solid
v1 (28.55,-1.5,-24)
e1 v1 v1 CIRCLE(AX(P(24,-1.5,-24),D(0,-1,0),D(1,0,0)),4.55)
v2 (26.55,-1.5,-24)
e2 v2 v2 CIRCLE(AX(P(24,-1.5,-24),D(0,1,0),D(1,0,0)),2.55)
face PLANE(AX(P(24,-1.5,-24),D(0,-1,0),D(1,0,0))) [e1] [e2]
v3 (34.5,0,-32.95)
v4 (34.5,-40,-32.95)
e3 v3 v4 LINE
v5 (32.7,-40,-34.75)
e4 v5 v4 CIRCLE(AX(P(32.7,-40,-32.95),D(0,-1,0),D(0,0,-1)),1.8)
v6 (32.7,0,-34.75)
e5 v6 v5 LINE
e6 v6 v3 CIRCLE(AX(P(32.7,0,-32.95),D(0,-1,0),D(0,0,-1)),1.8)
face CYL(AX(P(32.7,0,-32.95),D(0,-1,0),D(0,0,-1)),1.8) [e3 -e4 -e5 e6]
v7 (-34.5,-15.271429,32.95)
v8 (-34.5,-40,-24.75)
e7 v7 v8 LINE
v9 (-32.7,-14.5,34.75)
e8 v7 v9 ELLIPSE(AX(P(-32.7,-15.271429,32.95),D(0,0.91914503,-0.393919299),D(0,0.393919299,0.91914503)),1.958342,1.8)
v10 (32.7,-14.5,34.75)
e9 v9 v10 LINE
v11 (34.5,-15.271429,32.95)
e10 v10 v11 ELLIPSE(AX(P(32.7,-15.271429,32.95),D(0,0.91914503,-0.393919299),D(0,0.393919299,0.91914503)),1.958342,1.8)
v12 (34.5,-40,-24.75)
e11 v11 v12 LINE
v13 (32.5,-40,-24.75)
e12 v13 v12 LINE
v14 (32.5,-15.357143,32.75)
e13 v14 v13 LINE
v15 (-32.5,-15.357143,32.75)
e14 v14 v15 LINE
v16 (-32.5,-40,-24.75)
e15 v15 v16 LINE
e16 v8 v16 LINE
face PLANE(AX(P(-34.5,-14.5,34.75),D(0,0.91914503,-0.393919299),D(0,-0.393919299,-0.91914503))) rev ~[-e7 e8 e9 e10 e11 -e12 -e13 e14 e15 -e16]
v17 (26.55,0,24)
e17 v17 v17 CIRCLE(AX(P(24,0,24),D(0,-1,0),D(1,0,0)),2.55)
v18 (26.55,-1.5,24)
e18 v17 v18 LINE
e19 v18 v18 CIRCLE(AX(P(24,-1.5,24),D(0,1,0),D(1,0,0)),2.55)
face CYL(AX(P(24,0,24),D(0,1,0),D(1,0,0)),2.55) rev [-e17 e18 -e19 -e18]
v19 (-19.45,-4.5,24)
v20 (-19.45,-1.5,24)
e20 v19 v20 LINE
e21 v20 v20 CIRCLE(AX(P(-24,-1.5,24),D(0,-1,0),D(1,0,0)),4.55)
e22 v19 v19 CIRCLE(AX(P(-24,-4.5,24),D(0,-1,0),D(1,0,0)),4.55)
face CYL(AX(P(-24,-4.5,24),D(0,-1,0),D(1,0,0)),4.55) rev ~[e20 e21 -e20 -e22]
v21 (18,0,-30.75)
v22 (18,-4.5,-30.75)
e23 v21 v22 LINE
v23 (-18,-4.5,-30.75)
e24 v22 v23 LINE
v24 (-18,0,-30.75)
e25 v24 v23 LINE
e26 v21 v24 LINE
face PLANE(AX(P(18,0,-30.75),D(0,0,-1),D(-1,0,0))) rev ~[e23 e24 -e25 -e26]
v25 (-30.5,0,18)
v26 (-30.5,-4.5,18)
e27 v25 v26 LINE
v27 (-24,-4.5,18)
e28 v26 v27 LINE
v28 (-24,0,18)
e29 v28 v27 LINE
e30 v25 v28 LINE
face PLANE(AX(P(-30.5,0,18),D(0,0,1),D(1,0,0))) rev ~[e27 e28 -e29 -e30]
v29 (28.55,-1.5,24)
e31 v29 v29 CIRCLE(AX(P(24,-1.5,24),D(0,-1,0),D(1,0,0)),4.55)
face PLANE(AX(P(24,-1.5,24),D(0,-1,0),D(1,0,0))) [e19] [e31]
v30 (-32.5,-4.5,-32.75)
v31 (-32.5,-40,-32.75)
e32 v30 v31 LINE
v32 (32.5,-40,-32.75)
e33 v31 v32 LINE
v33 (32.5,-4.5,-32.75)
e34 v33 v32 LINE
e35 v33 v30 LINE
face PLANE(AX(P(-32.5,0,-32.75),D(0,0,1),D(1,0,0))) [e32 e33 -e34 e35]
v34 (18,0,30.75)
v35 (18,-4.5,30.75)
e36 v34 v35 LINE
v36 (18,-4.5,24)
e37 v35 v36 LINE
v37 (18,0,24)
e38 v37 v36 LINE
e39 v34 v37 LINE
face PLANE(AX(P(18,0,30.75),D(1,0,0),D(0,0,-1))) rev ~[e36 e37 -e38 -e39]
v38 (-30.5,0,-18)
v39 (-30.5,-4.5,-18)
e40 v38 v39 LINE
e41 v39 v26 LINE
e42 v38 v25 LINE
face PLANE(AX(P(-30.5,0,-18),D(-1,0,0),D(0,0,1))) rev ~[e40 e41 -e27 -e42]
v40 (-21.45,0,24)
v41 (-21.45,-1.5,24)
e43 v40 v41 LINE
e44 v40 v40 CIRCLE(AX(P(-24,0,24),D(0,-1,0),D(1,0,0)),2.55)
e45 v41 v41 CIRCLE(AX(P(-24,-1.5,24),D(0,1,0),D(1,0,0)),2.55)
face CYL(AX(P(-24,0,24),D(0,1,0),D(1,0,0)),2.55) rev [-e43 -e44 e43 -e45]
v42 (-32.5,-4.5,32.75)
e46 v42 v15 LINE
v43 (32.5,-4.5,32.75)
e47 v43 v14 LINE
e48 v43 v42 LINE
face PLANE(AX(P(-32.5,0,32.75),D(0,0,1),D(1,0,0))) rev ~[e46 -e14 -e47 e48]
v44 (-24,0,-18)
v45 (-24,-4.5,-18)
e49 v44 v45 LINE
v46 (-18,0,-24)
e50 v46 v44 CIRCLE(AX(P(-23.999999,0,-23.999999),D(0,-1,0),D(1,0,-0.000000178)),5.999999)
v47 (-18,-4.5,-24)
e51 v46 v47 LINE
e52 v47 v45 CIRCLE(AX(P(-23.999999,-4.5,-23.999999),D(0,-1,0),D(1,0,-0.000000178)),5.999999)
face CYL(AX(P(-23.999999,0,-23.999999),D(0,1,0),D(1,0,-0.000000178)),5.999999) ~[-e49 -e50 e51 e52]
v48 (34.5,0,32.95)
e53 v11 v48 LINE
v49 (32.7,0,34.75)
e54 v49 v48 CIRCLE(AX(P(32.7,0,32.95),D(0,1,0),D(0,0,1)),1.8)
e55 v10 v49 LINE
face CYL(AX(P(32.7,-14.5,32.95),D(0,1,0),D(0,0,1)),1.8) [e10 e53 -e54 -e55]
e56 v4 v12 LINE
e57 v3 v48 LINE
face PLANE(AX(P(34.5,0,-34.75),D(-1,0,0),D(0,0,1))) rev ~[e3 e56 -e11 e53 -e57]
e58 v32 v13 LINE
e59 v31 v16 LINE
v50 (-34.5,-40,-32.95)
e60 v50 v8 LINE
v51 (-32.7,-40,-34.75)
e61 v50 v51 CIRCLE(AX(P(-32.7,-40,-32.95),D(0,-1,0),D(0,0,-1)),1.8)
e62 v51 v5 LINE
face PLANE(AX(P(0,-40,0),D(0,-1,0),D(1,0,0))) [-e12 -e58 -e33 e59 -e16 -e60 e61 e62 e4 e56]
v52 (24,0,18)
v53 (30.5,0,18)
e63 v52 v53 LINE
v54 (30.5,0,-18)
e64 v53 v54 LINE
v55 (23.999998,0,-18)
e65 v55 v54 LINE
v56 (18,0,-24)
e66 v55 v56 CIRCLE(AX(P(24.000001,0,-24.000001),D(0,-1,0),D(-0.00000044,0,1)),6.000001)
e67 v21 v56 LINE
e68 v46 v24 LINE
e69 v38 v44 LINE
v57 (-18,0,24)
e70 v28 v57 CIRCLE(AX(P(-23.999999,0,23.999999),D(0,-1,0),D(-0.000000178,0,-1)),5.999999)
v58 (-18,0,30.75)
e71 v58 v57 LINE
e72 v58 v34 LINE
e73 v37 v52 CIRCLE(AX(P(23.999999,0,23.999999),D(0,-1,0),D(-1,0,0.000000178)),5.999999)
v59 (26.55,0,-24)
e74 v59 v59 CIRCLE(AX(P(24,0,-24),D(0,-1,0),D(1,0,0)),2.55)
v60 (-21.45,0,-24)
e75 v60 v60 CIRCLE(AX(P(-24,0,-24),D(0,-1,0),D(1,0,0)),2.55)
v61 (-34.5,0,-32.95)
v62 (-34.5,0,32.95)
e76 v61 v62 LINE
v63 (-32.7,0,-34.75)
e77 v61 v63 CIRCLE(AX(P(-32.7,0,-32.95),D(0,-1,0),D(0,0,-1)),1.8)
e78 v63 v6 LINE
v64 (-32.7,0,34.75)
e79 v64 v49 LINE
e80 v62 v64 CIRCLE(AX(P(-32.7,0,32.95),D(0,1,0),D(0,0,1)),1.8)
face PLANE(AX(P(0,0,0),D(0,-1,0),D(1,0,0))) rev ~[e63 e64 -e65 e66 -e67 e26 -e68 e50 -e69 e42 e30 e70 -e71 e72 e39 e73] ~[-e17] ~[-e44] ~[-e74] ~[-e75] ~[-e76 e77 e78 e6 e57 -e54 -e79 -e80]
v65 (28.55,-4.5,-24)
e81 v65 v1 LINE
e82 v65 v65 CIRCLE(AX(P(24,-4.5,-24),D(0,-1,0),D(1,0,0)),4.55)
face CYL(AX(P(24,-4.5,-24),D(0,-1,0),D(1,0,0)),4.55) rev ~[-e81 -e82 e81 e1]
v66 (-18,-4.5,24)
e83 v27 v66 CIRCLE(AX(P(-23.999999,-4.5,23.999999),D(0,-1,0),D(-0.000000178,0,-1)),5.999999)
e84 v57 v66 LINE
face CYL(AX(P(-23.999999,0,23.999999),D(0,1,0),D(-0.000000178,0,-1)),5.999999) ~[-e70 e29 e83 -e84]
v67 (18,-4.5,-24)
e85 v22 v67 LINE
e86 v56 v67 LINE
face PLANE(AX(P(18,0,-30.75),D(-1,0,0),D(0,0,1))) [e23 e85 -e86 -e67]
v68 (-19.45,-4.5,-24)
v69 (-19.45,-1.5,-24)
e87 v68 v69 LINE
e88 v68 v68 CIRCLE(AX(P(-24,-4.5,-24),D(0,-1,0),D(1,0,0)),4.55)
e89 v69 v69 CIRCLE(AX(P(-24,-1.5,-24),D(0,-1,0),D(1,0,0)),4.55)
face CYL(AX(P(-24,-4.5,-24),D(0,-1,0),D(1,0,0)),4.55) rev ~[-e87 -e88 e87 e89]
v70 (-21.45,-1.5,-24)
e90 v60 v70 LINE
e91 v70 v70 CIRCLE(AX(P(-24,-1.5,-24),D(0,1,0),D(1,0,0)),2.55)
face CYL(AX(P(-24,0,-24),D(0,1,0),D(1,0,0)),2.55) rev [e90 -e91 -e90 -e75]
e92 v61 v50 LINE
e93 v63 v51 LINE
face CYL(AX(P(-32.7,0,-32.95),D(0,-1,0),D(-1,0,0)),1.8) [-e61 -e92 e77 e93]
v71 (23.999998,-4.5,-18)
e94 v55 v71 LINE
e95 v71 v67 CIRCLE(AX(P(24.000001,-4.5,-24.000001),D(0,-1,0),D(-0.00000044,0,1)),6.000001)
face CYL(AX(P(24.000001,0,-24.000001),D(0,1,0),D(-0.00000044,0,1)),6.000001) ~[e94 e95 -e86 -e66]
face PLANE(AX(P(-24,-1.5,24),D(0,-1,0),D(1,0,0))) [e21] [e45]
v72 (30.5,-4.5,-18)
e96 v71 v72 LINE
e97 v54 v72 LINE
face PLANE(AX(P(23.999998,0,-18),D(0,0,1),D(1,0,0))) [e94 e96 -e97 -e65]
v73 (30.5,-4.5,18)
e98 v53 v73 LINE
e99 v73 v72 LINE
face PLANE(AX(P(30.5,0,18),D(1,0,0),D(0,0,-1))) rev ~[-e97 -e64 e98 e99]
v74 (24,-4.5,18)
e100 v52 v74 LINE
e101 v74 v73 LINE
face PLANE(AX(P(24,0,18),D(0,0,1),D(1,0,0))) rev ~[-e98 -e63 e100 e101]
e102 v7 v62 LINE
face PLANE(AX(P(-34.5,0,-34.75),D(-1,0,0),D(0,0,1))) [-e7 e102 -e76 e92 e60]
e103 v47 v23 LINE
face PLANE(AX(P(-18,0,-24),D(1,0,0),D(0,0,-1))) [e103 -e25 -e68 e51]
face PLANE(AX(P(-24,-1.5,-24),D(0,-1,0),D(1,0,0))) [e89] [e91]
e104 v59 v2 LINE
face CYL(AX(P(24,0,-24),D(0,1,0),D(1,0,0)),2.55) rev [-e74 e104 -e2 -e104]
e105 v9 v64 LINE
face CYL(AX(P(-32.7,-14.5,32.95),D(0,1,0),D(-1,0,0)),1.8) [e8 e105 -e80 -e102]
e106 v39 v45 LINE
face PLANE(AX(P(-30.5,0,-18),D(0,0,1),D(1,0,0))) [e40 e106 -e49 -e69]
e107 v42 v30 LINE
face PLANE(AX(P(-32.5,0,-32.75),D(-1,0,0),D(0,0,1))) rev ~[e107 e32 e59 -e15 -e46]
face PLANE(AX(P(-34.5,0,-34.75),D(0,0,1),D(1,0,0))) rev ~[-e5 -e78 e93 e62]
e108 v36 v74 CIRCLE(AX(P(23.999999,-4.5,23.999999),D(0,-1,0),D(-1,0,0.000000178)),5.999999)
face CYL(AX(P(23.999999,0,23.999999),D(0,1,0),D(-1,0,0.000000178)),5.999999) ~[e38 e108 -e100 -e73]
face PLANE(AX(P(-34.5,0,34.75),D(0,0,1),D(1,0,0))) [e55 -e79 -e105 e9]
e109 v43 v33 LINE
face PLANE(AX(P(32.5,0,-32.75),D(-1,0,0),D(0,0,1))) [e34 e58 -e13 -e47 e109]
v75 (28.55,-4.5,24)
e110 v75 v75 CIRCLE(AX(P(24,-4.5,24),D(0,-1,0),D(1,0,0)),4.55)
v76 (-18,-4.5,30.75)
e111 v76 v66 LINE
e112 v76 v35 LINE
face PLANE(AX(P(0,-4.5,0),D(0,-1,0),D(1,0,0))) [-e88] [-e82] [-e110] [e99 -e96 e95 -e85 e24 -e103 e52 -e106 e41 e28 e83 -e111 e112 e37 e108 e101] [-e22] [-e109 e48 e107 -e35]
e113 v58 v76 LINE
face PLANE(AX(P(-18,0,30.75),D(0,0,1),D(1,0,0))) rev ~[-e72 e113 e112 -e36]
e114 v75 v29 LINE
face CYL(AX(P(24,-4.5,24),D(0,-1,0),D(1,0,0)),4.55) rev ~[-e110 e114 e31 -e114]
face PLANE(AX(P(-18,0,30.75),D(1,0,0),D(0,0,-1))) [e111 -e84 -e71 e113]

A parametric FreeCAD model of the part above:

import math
import FreeCAD as App
import Part
import Sketcher

V = App.Vector
Q = App.Units.Quantity


def edges_at(feature, points):
    """Names of the edges that pass closest to the given points."""
    edges = feature.Shape.Edges
    near = lambda p: min(range(len(edges)), key=lambda i: edges[i].distToShape(Part.Vertex(*p))[0])
    return sorted({f"Edge{near(p) + 1}" for p in points})

doc = App.newDocument("Part")
body = doc.addObject("PartDesign::Body", "Body")

sketch1 = body.newObject("Sketcher::SketchObject", "Sketch")
sketch1.AttachmentSupport = (doc.getObject("XZ_Plane"), [""])
sketch1.MapMode = "FlatFace"
sketch1.addGeometry([
    Part.LineSegment(V(-34.5, 34.8, 0), V(-34.5, -34.8, 0)),
    Part.LineSegment(V(-34.5, -34.8, 0), V(34.5, -34.8, 0)),
    Part.LineSegment(V(34.5, -34.8, 0), V(34.5, 34.8, 0)),
    Part.LineSegment(V(34.5, 34.8, 0), V(-34.5, 34.8, 0)),
    Part.Circle(V(-24, -24, 0), V(0, 0, 1), 2.5),
    Part.Circle(V(24, -24, 0), V(0, 0, 1), 2.5),
    Part.Circle(V(-24, 24, 0), V(0, 0, 1), 2.5),
    Part.LineSegment(V(-18, 24, 0), V(-18, 30.8, 0)),
    Part.LineSegment(V(-18, 30.8, 0), V(18, 30.8, 0)),
    Part.LineSegment(V(18, 30.8, 0), V(18, 24, 0)),
    Part.ArcOfCircle(Part.Circle(V(24, 24, 0), V(0, 0, 1), 6), math.radians(180), math.radians(270)),
    Part.LineSegment(V(24, 18, 0), V(30.5, 18, 0)),
    Part.LineSegment(V(30.5, 18, 0), V(30.5, -18, 0)),
    Part.LineSegment(V(30.5, -18, 0), V(24, -18, 0)),
    Part.ArcOfCircle(Part.Circle(V(24, -24, 0), V(0, 0, 1), 6), math.radians(90), math.radians(180)),
    Part.LineSegment(V(18, -24, 0), V(18, -30.8, 0)),
    Part.LineSegment(V(18, -30.8, 0), V(-18, -30.8, 0)),
    Part.LineSegment(V(-18, -30.8, 0), V(-18, -24, 0)),
    Part.ArcOfCircle(Part.Circle(V(-24, -24, 0), V(0, 0, 1), 6), math.radians(0), math.radians(90)),
    Part.LineSegment(V(-24, -18, 0), V(-30.5, -18, 0)),
    Part.LineSegment(V(-30.5, -18, 0), V(-30.5, 18, 0)),
    Part.LineSegment(V(-30.5, 18, 0), V(-24, 18, 0)),
    Part.ArcOfCircle(Part.Circle(V(-24, 24, 0), V(0, 0, 1), 6), math.radians(-90), math.radians(0)),
    Part.Circle(V(24, 24, 0), V(0, 0, 1), 2.5),
], False)
sketch1.addConstraint([
    Sketcher.Constraint("Coincident", 0, 2, 1, 1),
    Sketcher.Constraint("Coincident", 1, 2, 2, 1),
    Sketcher.Constraint("Coincident", 2, 2, 3, 1),
    Sketcher.Constraint("Coincident", 3, 2, 0, 1),
    Sketcher.Constraint("Coincident", 7, 2, 8, 1),
    Sketcher.Constraint("Coincident", 8, 2, 9, 1),
    Sketcher.Constraint("Tangent", 9, 2, 10, 1),
    Sketcher.Constraint("Tangent", 10, 2, 11, 1),
    Sketcher.Constraint("Coincident", 11, 2, 12, 1),
    Sketcher.Constraint("Coincident", 12, 2, 13, 1),
    Sketcher.Constraint("Tangent", 13, 2, 14, 1),
    Sketcher.Constraint("Tangent", 14, 2, 15, 1),
    Sketcher.Constraint("Coincident", 15, 2, 16, 1),
    Sketcher.Constraint("Coincident", 16, 2, 17, 1),
    Sketcher.Constraint("Tangent", 17, 2, 18, 1),
    Sketcher.Constraint("Tangent", 18, 2, 19, 1),
    Sketcher.Constraint("Coincident", 19, 2, 20, 1),
    Sketcher.Constraint("Coincident", 20, 2, 21, 1),
    Sketcher.Constraint("Tangent", 21, 2, 22, 1),
    Sketcher.Constraint("Tangent", 22, 2, 7, 1),
    Sketcher.Constraint("Vertical", 0),
    Sketcher.Constraint("Horizontal", 1),
    Sketcher.Constraint("Vertical", 2),
    Sketcher.Constraint("Horizontal", 3),
    Sketcher.Constraint("Vertical", 7),
    Sketcher.Constraint("Horizontal", 8),
    Sketcher.Constraint("Vertical", 9),
    Sketcher.Constraint("Horizontal", 11),
    Sketcher.Constraint("Vertical", 12),
    Sketcher.Constraint("Horizontal", 13),
    Sketcher.Constraint("Vertical", 15),
    Sketcher.Constraint("Horizontal", 16),
    Sketcher.Constraint("Vertical", 17),
    Sketcher.Constraint("Horizontal", 19),
    Sketcher.Constraint("Vertical", 20),
    Sketcher.Constraint("Horizontal", 21),
    Sketcher.Constraint("Coincident", 14, 3, 5, 3),
    Sketcher.Constraint("Coincident", 18, 3, 4, 3),
    Sketcher.Constraint("Coincident", 22, 3, 6, 3),
    Sketcher.Constraint("Coincident", 23, 3, 10, 3),
    Sketcher.Constraint("Equal", 4, 5),
    Sketcher.Constraint("Equal", 5, 6),
    Sketcher.Constraint("Equal", 10, 14),
    Sketcher.Constraint("Equal", 14, 18),
    Sketcher.Constraint("Equal", 18, 22),
    Sketcher.Constraint("Equal", 6, 23),
    Sketcher.Constraint("Symmetric", 5, 3, 6, 3, -1, 1),
    Sketcher.Constraint("Symmetric", 4, 3, 10, 3, -1, 1),
    Sketcher.Constraint("Symmetric", 0, 2, 2, 2, -1, 1),
    Sketcher.Constraint("Symmetric", 4, 3, 5, 3, -2),
    Sketcher.Constraint("Equal", 13, 19),
    Sketcher.Constraint("Equal", 16, 12),
    Sketcher.Constraint("Equal", 9, 15),
    Sketcher.Constraint("Radius", 10, Q("5.999999 mm")),
    Sketcher.Constraint("Diameter", 4, Q("5.1 mm")),
    Sketcher.Constraint("DistanceX", 1, 1, 1, 2, Q("69 mm")),
    Sketcher.Constraint("DistanceX", 8, 1, 8, 2, Q("36 mm")),
    Sketcher.Constraint("DistanceX", 11, 1, 11, 2, Q("6.5 mm")),
    Sketcher.Constraint("DistanceY", 0, 2, 0, 1, Q("69.5 mm")),
    Sketcher.Constraint("DistanceY", 7, 2, 3, 2, Q("4 mm")),
])
pad1 = body.newObject("PartDesign::Pad", "Pad")
pad1.Profile = sketch1
pad1.Length = 4.5

sketch2 = body.newObject("Sketcher::SketchObject", "Sketch001")
sketch2.AttachmentSupport = (doc.getObject("XZ_Plane"), [""])
sketch2.MapMode = "FlatFace"
sketch2.addGeometry([
    Part.LineSegment(V(-34, 35, 0), V(-34, -35, 0)),
    Part.LineSegment(V(-34, -35, 0), V(34, -35, 0)),
    Part.LineSegment(V(34, -35, 0), V(34, 35, 0)),
    Part.LineSegment(V(34, 35, 0), V(-34, 35, 0)),
    Part.LineSegment(V(32, -33, 0), V(-32, -33, 0)),
    Part.LineSegment(V(-32, -33, 0), V(-32, 33, 0)),
    Part.LineSegment(V(-32, 33, 0), V(32, 33, 0)),
    Part.LineSegment(V(32, 33, 0), V(32, -33, 0)),
], False)
sketch2.addConstraint([
    Sketcher.Constraint("Coincident", 0, 2, 1, 1),
    Sketcher.Constraint("Coincident", 1, 2, 2, 1),
    Sketcher.Constraint("Coincident", 2, 2, 3, 1),
    Sketcher.Constraint("Coincident", 3, 2, 0, 1),
    Sketcher.Constraint("Coincident", 4, 2, 5, 1),
    Sketcher.Constraint("Coincident", 5, 2, 6, 1),
    Sketcher.Constraint("Coincident", 6, 2, 7, 1),
    Sketcher.Constraint("Coincident", 7, 2, 4, 1),
    Sketcher.Constraint("Vertical", 0),
    Sketcher.Constraint("Horizontal", 1),
    Sketcher.Constraint("Vertical", 2),
    Sketcher.Constraint("Horizontal", 3),
    Sketcher.Constraint("Horizontal", 4),
    Sketcher.Constraint("Vertical", 5),
    Sketcher.Constraint("Horizontal", 6),
    Sketcher.Constraint("Vertical", 7),
    Sketcher.Constraint("Symmetric", 0, 2, 2, 2, -1, 1),
    Sketcher.Constraint("Symmetric", 4, 2, 6, 2, -1, 1),
    Sketcher.Constraint("DistanceX", 1, 1, 1, 2, Q("69 mm")),
    Sketcher.Constraint("DistanceX", 4, 2, 4, 1, Q("65 mm")),
    Sketcher.Constraint("DistanceY", 0, 2, 0, 1, Q("69.5 mm")),
    Sketcher.Constraint("DistanceY", 5, 1, 5, 2, Q("65.5 mm")),
])
pad2 = body.newObject("PartDesign::Pad", "Pad001")
pad2.Profile = sketch2
pad2.Length = 40

sketch3 = body.newObject("Sketcher::SketchObject", "Sketch002")
sketch3.AttachmentSupport = (doc.getObject("YZ_Plane"), [""])
sketch3.MapMode = "FlatFace"
sketch3.AttachmentOffset = App.Placement(V(0, 0, -34.5), App.Rotation())
sketch3.addGeometry([
    Part.LineSegment(V(-14, 35, 0), V(-40, -25, 0)),
    Part.LineSegment(V(-40, -25, 0), V(-40, 35, 0)),
    Part.LineSegment(V(-40, 35, 0), V(-14, 35, 0)),
], False)
sketch3.addConstraint([
    Sketcher.Constraint("Coincident", 0, 2, 1, 1),
    Sketcher.Constraint("Coincident", 1, 2, 2, 1),
    Sketcher.Constraint("Coincident", 2, 2, 0, 1),
    Sketcher.Constraint("Vertical", 1),
    Sketcher.Constraint("Horizontal", 2),
    Sketcher.Constraint("DistanceX", 2, 1, 2, 2, Q("25.5 mm")),
    Sketcher.Constraint("DistanceY", 1, 1, 1, 2, Q("59.5 mm")),
    Sketcher.Constraint("DistanceX", 0, 2, -1, 1, Q("40 mm")),
    Sketcher.Constraint("DistanceY", 0, 2, -1, 1, Q("24.75 mm")),
])
pocket1 = body.newObject("PartDesign::Pocket", "Pocket")
pocket1.Profile = sketch3
pocket1.Type = "ThroughAll"
pocket1.Reversed = True

sketch4 = body.newObject("Sketcher::SketchObject", "Sketch003")
sketch4.AttachmentSupport = (doc.getObject("XZ_Plane"), [""])
sketch4.MapMode = "FlatFace"
sketch4.AttachmentOffset = App.Placement(V(0, 0, 4.5), App.Rotation())
sketch4.addGeometry([
    Part.Circle(V(-24, 24, 0), V(0, 0, 1), 4.5),
    Part.Circle(V(24, 24, 0), V(0, 0, 1), 4.5),
    Part.Circle(V(-24, -24, 0), V(0, 0, 1), 4.5),
    Part.Circle(V(24, -24, 0), V(0, 0, 1), 4.5),
], False)
sketch4.addConstraint([
    Sketcher.Constraint("Equal", 0, 1),
    Sketcher.Constraint("Equal", 1, 2),
    Sketcher.Constraint("Equal", 2, 3),
    Sketcher.Constraint("Symmetric", 1, 3, 2, 3, -1, 1),
    Sketcher.Constraint("Symmetric", 0, 3, 3, 3, -1, 1),
    Sketcher.Constraint("Symmetric", 0, 3, 1, 3, -2),
    Sketcher.Constraint("Diameter", 0, Q("9.1 mm")),
    Sketcher.Constraint("DistanceX", 0, 3, -1, 1, Q("24 mm")),
    Sketcher.Constraint("DistanceY", -1, 1, 0, 3, Q("24 mm")),
])
pocket2 = body.newObject("PartDesign::Pocket", "Pocket001")
pocket2.Profile = sketch4
pocket2.Length = 3
doc.recompute()

fillet = body.newObject("PartDesign::Fillet", "Fillet")
fillet.Base = (pocket2, edges_at(pocket2, [
    (-34.5, -7.25, 34.75),
    (-34.5, -7.25, 34.75),
    (-34.5, -20, -34.75),
    (-34.5, -20, -34.75),
    (34.5, -20, -34.75),
    (34.5, -20, -34.75),
    (34.5, -7.25, 34.75),
    (34.5, -7.25, 34.75),
]))
fillet.Radius = 1.8

doc.recompute()
